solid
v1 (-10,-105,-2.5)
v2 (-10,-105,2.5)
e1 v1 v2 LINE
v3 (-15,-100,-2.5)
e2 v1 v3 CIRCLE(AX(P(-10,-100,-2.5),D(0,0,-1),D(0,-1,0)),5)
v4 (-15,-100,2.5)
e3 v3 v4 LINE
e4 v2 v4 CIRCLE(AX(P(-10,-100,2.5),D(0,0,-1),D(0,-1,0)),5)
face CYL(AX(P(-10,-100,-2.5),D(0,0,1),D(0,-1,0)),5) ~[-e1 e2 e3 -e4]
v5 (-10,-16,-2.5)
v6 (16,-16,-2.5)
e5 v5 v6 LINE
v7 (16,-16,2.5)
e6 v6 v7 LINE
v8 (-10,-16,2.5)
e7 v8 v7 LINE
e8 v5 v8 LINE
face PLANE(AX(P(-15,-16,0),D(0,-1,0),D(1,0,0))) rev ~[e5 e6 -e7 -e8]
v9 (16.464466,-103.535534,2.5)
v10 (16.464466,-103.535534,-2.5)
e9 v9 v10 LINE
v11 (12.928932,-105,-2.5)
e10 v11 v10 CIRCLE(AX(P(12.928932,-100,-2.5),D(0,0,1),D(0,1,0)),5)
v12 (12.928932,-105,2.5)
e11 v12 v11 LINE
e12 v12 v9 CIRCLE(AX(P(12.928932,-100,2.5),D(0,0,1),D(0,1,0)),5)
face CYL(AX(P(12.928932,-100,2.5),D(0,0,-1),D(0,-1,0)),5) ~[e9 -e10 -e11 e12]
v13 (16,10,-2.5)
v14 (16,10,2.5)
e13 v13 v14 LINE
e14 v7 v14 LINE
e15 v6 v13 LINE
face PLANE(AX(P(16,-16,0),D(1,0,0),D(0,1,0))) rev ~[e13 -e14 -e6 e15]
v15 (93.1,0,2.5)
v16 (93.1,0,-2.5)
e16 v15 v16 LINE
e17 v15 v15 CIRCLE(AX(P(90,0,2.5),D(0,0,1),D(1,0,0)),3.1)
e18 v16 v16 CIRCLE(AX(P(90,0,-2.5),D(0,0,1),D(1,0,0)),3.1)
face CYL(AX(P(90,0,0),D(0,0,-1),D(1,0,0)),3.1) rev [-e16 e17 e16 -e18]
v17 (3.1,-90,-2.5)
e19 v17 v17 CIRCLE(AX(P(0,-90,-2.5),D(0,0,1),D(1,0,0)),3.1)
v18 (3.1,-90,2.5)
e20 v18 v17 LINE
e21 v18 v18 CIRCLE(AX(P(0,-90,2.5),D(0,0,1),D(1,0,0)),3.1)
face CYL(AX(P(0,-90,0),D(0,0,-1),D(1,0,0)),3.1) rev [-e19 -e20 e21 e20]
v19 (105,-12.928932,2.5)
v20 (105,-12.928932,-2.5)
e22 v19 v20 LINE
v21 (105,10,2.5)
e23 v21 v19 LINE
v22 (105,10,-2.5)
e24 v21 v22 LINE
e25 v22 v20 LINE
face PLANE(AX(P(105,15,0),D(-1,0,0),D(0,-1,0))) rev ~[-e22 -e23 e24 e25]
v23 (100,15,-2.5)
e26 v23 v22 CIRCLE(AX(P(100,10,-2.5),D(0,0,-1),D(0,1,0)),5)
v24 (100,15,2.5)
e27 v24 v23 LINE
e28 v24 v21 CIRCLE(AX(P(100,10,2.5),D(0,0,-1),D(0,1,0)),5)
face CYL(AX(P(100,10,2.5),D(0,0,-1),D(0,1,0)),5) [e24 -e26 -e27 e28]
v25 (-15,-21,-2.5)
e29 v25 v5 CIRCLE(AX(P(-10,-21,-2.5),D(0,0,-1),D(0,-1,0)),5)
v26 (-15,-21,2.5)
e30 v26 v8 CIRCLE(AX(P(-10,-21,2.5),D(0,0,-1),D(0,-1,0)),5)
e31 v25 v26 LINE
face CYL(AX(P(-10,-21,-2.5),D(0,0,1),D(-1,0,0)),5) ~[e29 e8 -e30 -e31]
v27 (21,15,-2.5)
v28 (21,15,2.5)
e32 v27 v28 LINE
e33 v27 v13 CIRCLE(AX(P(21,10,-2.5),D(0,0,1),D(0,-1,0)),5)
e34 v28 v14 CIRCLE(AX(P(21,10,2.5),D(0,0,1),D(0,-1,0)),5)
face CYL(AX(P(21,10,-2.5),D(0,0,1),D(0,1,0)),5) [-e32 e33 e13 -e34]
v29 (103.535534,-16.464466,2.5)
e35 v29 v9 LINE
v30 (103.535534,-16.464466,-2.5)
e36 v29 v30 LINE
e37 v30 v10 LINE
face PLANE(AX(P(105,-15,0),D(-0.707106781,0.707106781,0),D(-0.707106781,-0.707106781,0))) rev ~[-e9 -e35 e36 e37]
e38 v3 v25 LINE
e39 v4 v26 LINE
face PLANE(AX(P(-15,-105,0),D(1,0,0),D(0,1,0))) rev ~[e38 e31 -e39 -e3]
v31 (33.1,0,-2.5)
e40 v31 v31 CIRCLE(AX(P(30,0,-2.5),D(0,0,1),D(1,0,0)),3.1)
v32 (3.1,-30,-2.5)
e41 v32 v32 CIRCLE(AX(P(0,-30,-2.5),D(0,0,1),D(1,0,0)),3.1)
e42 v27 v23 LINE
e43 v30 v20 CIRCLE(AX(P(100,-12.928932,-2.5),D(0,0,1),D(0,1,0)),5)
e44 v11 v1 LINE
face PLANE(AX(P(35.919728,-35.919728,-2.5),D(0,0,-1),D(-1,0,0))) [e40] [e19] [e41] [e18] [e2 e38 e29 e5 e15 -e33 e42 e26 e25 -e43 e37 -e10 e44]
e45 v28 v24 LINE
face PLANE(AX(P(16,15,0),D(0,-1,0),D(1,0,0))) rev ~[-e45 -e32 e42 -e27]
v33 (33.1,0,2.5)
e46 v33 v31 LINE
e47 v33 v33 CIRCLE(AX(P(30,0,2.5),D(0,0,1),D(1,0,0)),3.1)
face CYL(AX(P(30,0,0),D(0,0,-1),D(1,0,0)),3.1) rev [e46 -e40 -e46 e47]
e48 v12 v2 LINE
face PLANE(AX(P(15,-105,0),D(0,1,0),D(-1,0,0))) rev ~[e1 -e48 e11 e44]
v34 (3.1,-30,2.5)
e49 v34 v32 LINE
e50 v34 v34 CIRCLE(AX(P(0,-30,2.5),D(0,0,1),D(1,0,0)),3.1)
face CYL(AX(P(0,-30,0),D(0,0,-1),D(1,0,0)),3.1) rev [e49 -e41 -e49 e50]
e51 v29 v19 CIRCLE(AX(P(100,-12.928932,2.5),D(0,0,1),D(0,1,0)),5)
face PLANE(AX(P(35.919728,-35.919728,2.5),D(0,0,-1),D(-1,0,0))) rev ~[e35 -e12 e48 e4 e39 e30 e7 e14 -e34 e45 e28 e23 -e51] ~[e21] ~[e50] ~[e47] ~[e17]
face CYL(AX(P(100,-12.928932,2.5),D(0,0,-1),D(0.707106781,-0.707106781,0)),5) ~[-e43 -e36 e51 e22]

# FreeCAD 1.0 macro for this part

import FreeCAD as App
import Part
import Sketcher


def edges_at(feature, points):
    """Names of the edges that pass closest to the given points."""
    edges = feature.Shape.Edges
    near = lambda p: min(range(len(edges)), key=lambda i: edges[i].distToShape(Part.Vertex(*p))[0])
    return sorted({f"Edge{near(p) + 1}" for p in points})

doc = App.newDocument("Part")
params = doc.addObject("Spreadsheet::Sheet", "Params")
for row, (alias, value) in enumerate([
    ("sketch1_diameter", "6.2 mm"),
    ("sketch1_width", "89 mm"),
    ("sketch1_width2", "31 mm"),
    ("sketch1_width3", "30 mm"),
    ("pad1_length", "5 mm"),
    ("fillet_radius", "5 mm"),
], start=1):
    params.set(f"A{row}", alias)
    params.set(f"B{row}", "=" + value)
    params.setAlias(f"B{row}", alias)

body = doc.addObject("PartDesign::Body", "Body")

# Sketch on XY plane
sketch1 = doc.addObject("Sketcher::SketchObject", "Sketch")
body.addObject(sketch1)
sketch1.AttachmentSupport = (doc.XY_Plane, [""])
sketch1.MapMode = "FlatFace"
sketch1.addGeometry(Part.LineSegment(App.Vector(105, 15, 0), App.Vector(16, 15, 0)), False)
sketch1.addGeometry(Part.LineSegment(App.Vector(16, 15, 0), App.Vector(16, -16, 0)), False)
sketch1.addGeometry(Part.LineSegment(App.Vector(16, -16, 0), App.Vector(-15, -16, 0)), False)
sketch1.addGeometry(Part.LineSegment(App.Vector(-15, -16, 0), App.Vector(-15, -105, 0)), False)
sketch1.addGeometry(Part.LineSegment(App.Vector(-15, -105, 0), App.Vector(15, -105, 0)), False)
sketch1.addGeometry(Part.LineSegment(App.Vector(15, -105, 0), App.Vector(105, -15, 0)), False)
sketch1.addGeometry(Part.LineSegment(App.Vector(105, -15, 0), App.Vector(105, 15, 0)), False)
sketch1.addGeometry(Part.Circle(App.Vector(0, -90, 0), App.Vector(0, 0, 1), 3.1), False)
sketch1.addGeometry(Part.Circle(App.Vector(90, 0, 0), App.Vector(0, 0, 1), 3.1), False)
sketch1.addGeometry(Part.Circle(App.Vector(0, -30, 0), App.Vector(0, 0, 1), 3.1), False)
sketch1.addGeometry(Part.Circle(App.Vector(30, 0, 0), App.Vector(0, 0, 1), 3.1), False)
sketch1.addConstraint(Sketcher.Constraint("Coincident", 0, 2, 1, 1))
sketch1.addConstraint(Sketcher.Constraint("Coincident", 1, 2, 2, 1))
sketch1.addConstraint(Sketcher.Constraint("Coincident", 2, 2, 3, 1))
sketch1.addConstraint(Sketcher.Constraint("Coincident", 3, 2, 4, 1))
sketch1.addConstraint(Sketcher.Constraint("Coincident", 4, 2, 5, 1))
sketch1.addConstraint(Sketcher.Constraint("Coincident", 5, 2, 6, 1))
sketch1.addConstraint(Sketcher.Constraint("Coincident", 6, 2, 0, 1))
sketch1.addConstraint(Sketcher.Constraint("Horizontal", 0))
sketch1.addConstraint(Sketcher.Constraint("Vertical", 1))
sketch1.addConstraint(Sketcher.Constraint("Horizontal", 2))
sketch1.addConstraint(Sketcher.Constraint("Vertical", 3))
sketch1.addConstraint(Sketcher.Constraint("Horizontal", 4))
sketch1.addConstraint(Sketcher.Constraint("Vertical", 6))
sketch1.addConstraint(Sketcher.Constraint("Equal", 7, 8))
sketch1.addConstraint(Sketcher.Constraint("Equal", 8, 9))
sketch1.addConstraint(Sketcher.Constraint("Equal", 9, 10))
sketch1.addConstraint(Sketcher.Constraint("PointOnObject", 7, 3, -2))
sketch1.addConstraint(Sketcher.Constraint("PointOnObject", 8, 3, -1))
sketch1.addConstraint(Sketcher.Constraint("PointOnObject", 9, 3, -2))
sketch1.addConstraint(Sketcher.Constraint("PointOnObject", 10, 3, -1))
sketch1.addConstraint(Sketcher.Constraint("Equal", 2, 1))
sketch1.addConstraint(Sketcher.Constraint("Equal", 0, 3))
sketch1.addConstraint(Sketcher.Constraint("Equal", 4, 6))
sketch1.addConstraint(Sketcher.Constraint("Diameter", 7, 6.2))
sketch1.addConstraint(Sketcher.Constraint("DistanceX", 0, 2, 0, 1, 89.0))
sketch1.addConstraint(Sketcher.Constraint("DistanceX", 2, 2, 2, 1, 31.0))
sketch1.addConstraint(Sketcher.Constraint("DistanceX", 4, 1, 4, 2, 30.0))
sketch1.addConstraint(Sketcher.Constraint("DistanceY", 7, 3, -1, 1, 90.0))
sketch1.addConstraint(Sketcher.Constraint("DistanceX", -1, 1, 8, 3, 90.0))
sketch1.addConstraint(Sketcher.Constraint("DistanceY", 9, 3, -1, 1, 30.0))
sketch1.addConstraint(Sketcher.Constraint("DistanceX", -1, 1, 10, 3, 30.0))
sketch1.addConstraint(Sketcher.Constraint("DistanceX", -1, 1, 0, 2, 16.0))
sketch1.addConstraint(Sketcher.Constraint("DistanceY", -1, 1, 0, 2, 15.0))
sketch1.setExpression("Constraints[23]", "Params.sketch1_diameter")
sketch1.setExpression("Constraints[24]", "Params.sketch1_width")
sketch1.setExpression("Constraints[25]", "Params.sketch1_width2")
sketch1.setExpression("Constraints[26]", "Params.sketch1_width3")
pad1 = doc.addObject("PartDesign::Pad", "Pad")
body.addObject(pad1)
pad1.Profile = sketch1
pad1.setExpression("Length", "Params.pad1_length")
pad1.Midplane = True
doc.recompute()

fillet = doc.addObject("PartDesign::Fillet", "Fillet")
body.addObject(fillet)
fillet.Base = (pad1, edges_at(pad1, [
    (-15, -105, 0),
    (105, 15, 0),
    (15, -105, 0),
    (105, -15, 0),
    (16, 15, 0),
    (-15, -16, 0),
]))
fillet.setExpression("Radius", "Params.fillet_radius")

doc.recompute()
